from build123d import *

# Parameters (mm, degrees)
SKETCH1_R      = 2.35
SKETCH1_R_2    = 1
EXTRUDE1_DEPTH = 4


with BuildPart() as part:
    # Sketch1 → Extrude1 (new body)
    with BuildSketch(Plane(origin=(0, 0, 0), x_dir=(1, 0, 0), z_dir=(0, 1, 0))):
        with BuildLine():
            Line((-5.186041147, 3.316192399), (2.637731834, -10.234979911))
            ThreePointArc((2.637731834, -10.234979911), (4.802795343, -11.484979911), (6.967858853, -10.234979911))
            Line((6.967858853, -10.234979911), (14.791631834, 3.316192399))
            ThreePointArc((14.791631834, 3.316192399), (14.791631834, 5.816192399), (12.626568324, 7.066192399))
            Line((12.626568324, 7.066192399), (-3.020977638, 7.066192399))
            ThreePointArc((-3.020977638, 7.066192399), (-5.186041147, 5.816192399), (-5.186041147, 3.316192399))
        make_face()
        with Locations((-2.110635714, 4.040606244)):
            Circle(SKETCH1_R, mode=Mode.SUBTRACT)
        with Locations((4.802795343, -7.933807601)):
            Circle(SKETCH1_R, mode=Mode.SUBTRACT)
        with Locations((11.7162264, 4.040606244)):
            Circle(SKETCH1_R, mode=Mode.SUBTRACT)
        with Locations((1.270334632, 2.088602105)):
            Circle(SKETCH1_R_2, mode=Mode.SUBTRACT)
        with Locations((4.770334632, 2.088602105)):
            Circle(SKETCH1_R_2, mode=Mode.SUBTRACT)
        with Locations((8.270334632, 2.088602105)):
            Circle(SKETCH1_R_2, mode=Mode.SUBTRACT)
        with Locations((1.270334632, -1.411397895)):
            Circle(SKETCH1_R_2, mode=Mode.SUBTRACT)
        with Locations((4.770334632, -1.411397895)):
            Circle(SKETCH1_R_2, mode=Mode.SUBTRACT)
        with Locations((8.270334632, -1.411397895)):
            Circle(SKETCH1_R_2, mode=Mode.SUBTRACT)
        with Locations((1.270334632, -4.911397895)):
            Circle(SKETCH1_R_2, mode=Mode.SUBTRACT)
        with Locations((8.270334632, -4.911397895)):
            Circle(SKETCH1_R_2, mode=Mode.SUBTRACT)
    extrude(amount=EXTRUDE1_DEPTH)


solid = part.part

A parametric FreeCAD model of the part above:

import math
import FreeCAD as App
import Part
import Sketcher
from FreeCAD import Vector
Q = App.Units.Quantity

doc = App.newDocument("Part")
body = doc.addObject("PartDesign::Body", "Body")

sketch1 = body.newObject("Sketcher::SketchObject", "Sketch")
sketch1.AttachmentSupport = (doc.getObject("XZ_Plane"), [""])
sketch1.MapMode = "FlatFace"
sketch1.addGeometry(Part.LineSegment(Vector(-5.2, -3.3, 0), Vector(2.6, 10.2, 0)), False)
sketch1.addGeometry(Part.ArcOfCircle(Part.Circle(Vector(4.8, 9, 0), Vector(0, 0, 1), 2.5), math.radians(30), math.radians(150)), False)
sketch1.addGeometry(Part.LineSegment(Vector(7, 10.2, 0), Vector(14.8, -3.3, 0)), False)
sketch1.addGeometry(Part.ArcOfCircle(Part.Circle(Vector(12.6, -4.6, 0), Vector(0, 0, 1), 2.5), math.radians(-90), math.radians(30)), False)
sketch1.addGeometry(Part.LineSegment(Vector(12.6, -7.1, 0), Vector(-3, -7.1, 0)), False)
sketch1.addGeometry(Part.ArcOfCircle(Part.Circle(Vector(-3, -4.6, 0), Vector(0, 0, 1), 2.5), math.radians(150), math.radians(270)), False)
sketch1.addGeometry(Part.Circle(Vector(4.8, 7.9, 0), Vector(0, 0, 1), 2.4), False)
sketch1.addGeometry(Part.Circle(Vector(1.3, 4.9, 0), Vector(0, 0, 1), 1), False)
sketch1.addGeometry(Part.Circle(Vector(8.3, 4.9, 0), Vector(0, 0, 1), 1), False)
sketch1.addGeometry(Part.Circle(Vector(1.3, 1.4, 0), Vector(0, 0, 1), 1), False)
sketch1.addGeometry(Part.Circle(Vector(4.8, 1.4, 0), Vector(0, 0, 1), 1), False)
sketch1.addGeometry(Part.Circle(Vector(1.3, -2.1, 0), Vector(0, 0, 1), 1), False)
sketch1.addGeometry(Part.Circle(Vector(4.8, -2.1, 0), Vector(0, 0, 1), 1), False)
sketch1.addGeometry(Part.Circle(Vector(-2.1, -4, 0), Vector(0, 0, 1), 2.4), False)
sketch1.addGeometry(Part.Circle(Vector(8.3, 1.4, 0), Vector(0, 0, 1), 1), False)
sketch1.addGeometry(Part.Circle(Vector(8.3, -2.1, 0), Vector(0, 0, 1), 1), False)
sketch1.addGeometry(Part.Circle(Vector(11.7, -4, 0), Vector(0, 0, 1), 2.4), False)
sketch1.addConstraint(Sketcher.Constraint("Tangent", 0, 2, 1, 2))
sketch1.addConstraint(Sketcher.Constraint("Tangent", 1, 1, 2, 1))
sketch1.addConstraint(Sketcher.Constraint("Tangent", 2, 2, 3, 2))
sketch1.addConstraint(Sketcher.Constraint("Tangent", 3, 1, 4, 1))
sketch1.addConstraint(Sketcher.Constraint("Tangent", 4, 2, 5, 2))
sketch1.addConstraint(Sketcher.Constraint("Tangent", 5, 1, 0, 1))
sketch1.addConstraint(Sketcher.Constraint("Horizontal", 4))
sketch1.addConstraint(Sketcher.Constraint("Equal", 1, 3))
sketch1.addConstraint(Sketcher.Constraint("Equal", 3, 5))
sketch1.addConstraint(Sketcher.Constraint("Equal", 7, 8))
sketch1.addConstraint(Sketcher.Constraint("Equal", 8, 9))
sketch1.addConstraint(Sketcher.Constraint("Equal", 9, 10))
sketch1.addConstraint(Sketcher.Constraint("Equal", 10, 11))
sketch1.addConstraint(Sketcher.Constraint("Equal", 11, 12))
sketch1.addConstraint(Sketcher.Constraint("Equal", 6, 13))
sketch1.addConstraint(Sketcher.Constraint("Equal", 12, 14))
sketch1.addConstraint(Sketcher.Constraint("Equal", 14, 15))
sketch1.addConstraint(Sketcher.Constraint("Equal", 13, 16))
sketch1.addConstraint(Sketcher.Constraint("Horizontal", 7, 3, 8, 3))
sketch1.addConstraint(Sketcher.Constraint("Horizontal", 9, 3, 10, 3))
sketch1.addConstraint(Sketcher.Constraint("Horizontal", 11, 3, 12, 3))
sketch1.addConstraint(Sketcher.Constraint("Horizontal", 10, 3, 14, 3))
sketch1.addConstraint(Sketcher.Constraint("Horizontal", 12, 3, 15, 3))
sketch1.addConstraint(Sketcher.Constraint("Horizontal", 13, 3, 16, 3))
sketch1.addConstraint(Sketcher.Constraint("Horizontal", 0, 2, 1, 1))
sketch1.addConstraint(Sketcher.Constraint("Vertical", 1, 3, 6, 3))
sketch1.addConstraint(Sketcher.Constraint("Vertical", 7, 3, 9, 3))
sketch1.addConstraint(Sketcher.Constraint("Vertical", 9, 3, 11, 3))
sketch1.addConstraint(Sketcher.Constraint("Vertical", 10, 3, 12, 3))
sketch1.addConstraint(Sketcher.Constraint("Vertical", 8, 3, 14, 3))
sketch1.addConstraint(Sketcher.Constraint("Vertical", 14, 3, 15, 3))
sketch1.addConstraint(Sketcher.Constraint("Diameter", 7, Q("2 mm")))
sketch1.addConstraint(Sketcher.Constraint("Diameter", 6, Q("4.7 mm")))
sketch1.addConstraint(Sketcher.Constraint("Radius", 1, Q("2.5 mm")))
sketch1.addConstraint(Sketcher.Constraint("Angle", 0, Q("60 deg")))
sketch1.addConstraint(Sketcher.Constraint("DistanceX", 7, 3, 8, 3, Q("7 mm")))
sketch1.addConstraint(Sketcher.Constraint("DistanceY", 11, 3, 7, 3, Q("7 mm")))
sketch1.addConstraint(Sketcher.Constraint("DistanceY", 5, 3, 6, 3, Q("12.5 mm")))
sketch1.addConstraint(Sketcher.Constraint("DistanceY", 9, 3, 7, 3, Q("3.5 mm")))
sketch1.addConstraint(Sketcher.Constraint("DistanceX", 9, 3, 10, 3, Q("3.5 mm")))
sketch1.addConstraint(Sketcher.Constraint("DistanceX", 4, 2, 4, 1, Q("15.647546 mm")))
sketch1.addConstraint(Sketcher.Constraint("DistanceY", -1, 1, 1, 3, Q("8.98498 mm")))
sketch1.addConstraint(Sketcher.Constraint("DistanceX", -1, 1, 3, 3, Q("12.626568 mm")))
sketch1.addConstraint(Sketcher.Constraint("DistanceX", 7, 3, 6, 3, Q("3.532461 mm")))
sketch1.addConstraint(Sketcher.Constraint("DistanceY", 7, 3, 6, 3, Q("3.02241 mm")))
sketch1.addConstraint(Sketcher.Constraint("DistanceX", 5, 3, 13, 3, Q("0.910342 mm")))
sketch1.addConstraint(Sketcher.Constraint("DistanceX", 16, 3, 3, 3, Q("0.910342 mm")))
sketch1.addConstraint(Sketcher.Constraint("DistanceY", 13, 3, -1, 1, Q("4.040606 mm")))
pad1 = body.newObject("PartDesign::Pad", "Pad")
pad1.Profile = sketch1
pad1.Length = 4
pad1.Reversed = True

doc.recompute()
